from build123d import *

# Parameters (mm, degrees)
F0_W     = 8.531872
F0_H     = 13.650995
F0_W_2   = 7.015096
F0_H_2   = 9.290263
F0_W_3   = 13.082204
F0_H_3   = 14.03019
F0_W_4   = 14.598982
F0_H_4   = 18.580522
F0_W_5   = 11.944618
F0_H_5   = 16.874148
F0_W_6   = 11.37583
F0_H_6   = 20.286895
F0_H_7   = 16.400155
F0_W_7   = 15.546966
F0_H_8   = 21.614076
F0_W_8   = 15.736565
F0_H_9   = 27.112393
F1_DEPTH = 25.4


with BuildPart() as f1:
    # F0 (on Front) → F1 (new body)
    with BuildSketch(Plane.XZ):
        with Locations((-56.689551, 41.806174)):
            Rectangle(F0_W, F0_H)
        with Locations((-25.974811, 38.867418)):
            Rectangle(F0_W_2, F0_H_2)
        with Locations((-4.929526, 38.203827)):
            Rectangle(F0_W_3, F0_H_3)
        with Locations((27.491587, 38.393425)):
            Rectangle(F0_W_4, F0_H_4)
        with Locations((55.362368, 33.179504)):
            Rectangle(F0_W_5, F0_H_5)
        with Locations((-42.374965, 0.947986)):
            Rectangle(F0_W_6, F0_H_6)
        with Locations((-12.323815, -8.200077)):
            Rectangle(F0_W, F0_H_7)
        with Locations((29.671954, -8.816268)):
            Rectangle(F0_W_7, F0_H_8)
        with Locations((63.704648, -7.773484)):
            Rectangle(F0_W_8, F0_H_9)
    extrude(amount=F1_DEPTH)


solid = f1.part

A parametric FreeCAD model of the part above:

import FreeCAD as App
import Part
import Sketcher

V = App.Vector
Q = App.Units.Quantity

doc = App.newDocument("Part")
params = doc.addObject("Spreadsheet::Sheet", "Params")
for row, (alias, value) in enumerate([
    ("pad1_length", "1 in"),
], start=1):
    params.set(f"A{row}", alias)
    params.set(f"B{row}", "=" + value)
    params.setAlias(f"B{row}", alias)

body = doc.addObject("PartDesign::Body", "Body")
body.AllowCompound = True

# Sketch on XZ plane
sketch1 = doc.addObject("Sketcher::SketchObject", "Sketch")
body.addObject(sketch1)
sketch1.AttachmentSupport = (doc.XZ_Plane, [""])
sketch1.MapMode = "FlatFace"
sketch1.addGeometry(Part.LineSegment(V(-61, 49, 0), V(-61, 35, 0)), False)
sketch1.addGeometry(Part.LineSegment(V(-61, 35, 0), V(-52, 35, 0)), False)
sketch1.addGeometry(Part.LineSegment(V(-52, 35, 0), V(-52, 49, 0)), False)
sketch1.addGeometry(Part.LineSegment(V(-52, 49, 0), V(-61, 49, 0)), False)
sketch1.addGeometry(Part.LineSegment(V(-29, 44, 0), V(-29, 34, 0)), False)
sketch1.addGeometry(Part.LineSegment(V(-29, 34, 0), V(-22, 34, 0)), False)
sketch1.addGeometry(Part.LineSegment(V(-22, 34, 0), V(-22, 44, 0)), False)
sketch1.addGeometry(Part.LineSegment(V(-22, 44, 0), V(-29, 44, 0)), False)
sketch1.addGeometry(Part.LineSegment(V(-11, 45, 0), V(-11, 31, 0)), False)
sketch1.addGeometry(Part.LineSegment(V(-11, 31, 0), V(2, 31, 0)), False)
sketch1.addGeometry(Part.LineSegment(V(2, 31, 0), V(2, 45, 0)), False)
sketch1.addGeometry(Part.LineSegment(V(2, 45, 0), V(-11, 45, 0)), False)
sketch1.addGeometry(Part.LineSegment(V(20, 48, 0), V(20, 29, 0)), False)
sketch1.addGeometry(Part.LineSegment(V(20, 29, 0), V(35, 29, 0)), False)
sketch1.addGeometry(Part.LineSegment(V(35, 29, 0), V(35, 48, 0)), False)
sketch1.addGeometry(Part.LineSegment(V(35, 48, 0), V(20, 48, 0)), False)
sketch1.addGeometry(Part.LineSegment(V(49, 42, 0), V(49, 25, 0)), False)
sketch1.addGeometry(Part.LineSegment(V(49, 25, 0), V(61, 25, 0)), False)
sketch1.addGeometry(Part.LineSegment(V(61, 25, 0), V(61, 42, 0)), False)
sketch1.addGeometry(Part.LineSegment(V(61, 42, 0), V(49, 42, 0)), False)
sketch1.addGeometry(Part.LineSegment(V(-48, 11, 0), V(-48, -9, 0)), False)
sketch1.addGeometry(Part.LineSegment(V(-48, -9, 0), V(-37, -9, 0)), False)
sketch1.addGeometry(Part.LineSegment(V(-37, -9, 0), V(-37, 11, 0)), False)
sketch1.addGeometry(Part.LineSegment(V(-37, 11, 0), V(-48, 11, 0)), False)
sketch1.addGeometry(Part.LineSegment(V(-17, 0, 0), V(-17, -16, 0)), False)
sketch1.addGeometry(Part.LineSegment(V(-17, -16, 0), V(-8, -16, 0)), False)
sketch1.addGeometry(Part.LineSegment(V(-8, -16, 0), V(-8, 0, 0)), False)
sketch1.addGeometry(Part.LineSegment(V(-8, 0, 0), V(-17, 0, 0)), False)
sketch1.addGeometry(Part.LineSegment(V(22, 2, 0), V(22, -20, 0)), False)
sketch1.addGeometry(Part.LineSegment(V(22, -20, 0), V(37, -20, 0)), False)
sketch1.addGeometry(Part.LineSegment(V(37, -20, 0), V(37, 2, 0)), False)
sketch1.addGeometry(Part.LineSegment(V(37, 2, 0), V(22, 2, 0)), False)
sketch1.addGeometry(Part.LineSegment(V(56, 6, 0), V(56, -21, 0)), False)
sketch1.addGeometry(Part.LineSegment(V(56, -21, 0), V(72, -21, 0)), False)
sketch1.addGeometry(Part.LineSegment(V(72, -21, 0), V(72, 6, 0)), False)
sketch1.addGeometry(Part.LineSegment(V(72, 6, 0), V(56, 6, 0)), False)
sketch1.addConstraint(Sketcher.Constraint("Coincident", 0, 2, 1, 1))
sketch1.addConstraint(Sketcher.Constraint("Coincident", 1, 2, 2, 1))
sketch1.addConstraint(Sketcher.Constraint("Coincident", 2, 2, 3, 1))
sketch1.addConstraint(Sketcher.Constraint("Coincident", 3, 2, 0, 1))
sketch1.addConstraint(Sketcher.Constraint("Coincident", 4, 2, 5, 1))
sketch1.addConstraint(Sketcher.Constraint("Coincident", 5, 2, 6, 1))
sketch1.addConstraint(Sketcher.Constraint("Coincident", 6, 2, 7, 1))
sketch1.addConstraint(Sketcher.Constraint("Coincident", 7, 2, 4, 1))
sketch1.addConstraint(Sketcher.Constraint("Coincident", 8, 2, 9, 1))
sketch1.addConstraint(Sketcher.Constraint("Coincident", 9, 2, 10, 1))
sketch1.addConstraint(Sketcher.Constraint("Coincident", 10, 2, 11, 1))
sketch1.addConstraint(Sketcher.Constraint("Coincident", 11, 2, 8, 1))
sketch1.addConstraint(Sketcher.Constraint("Coincident", 12, 2, 13, 1))
sketch1.addConstraint(Sketcher.Constraint("Coincident", 13, 2, 14, 1))
sketch1.addConstraint(Sketcher.Constraint("Coincident", 14, 2, 15, 1))
sketch1.addConstraint(Sketcher.Constraint("Coincident", 15, 2, 12, 1))
sketch1.addConstraint(Sketcher.Constraint("Coincident", 16, 2, 17, 1))
sketch1.addConstraint(Sketcher.Constraint("Coincident", 17, 2, 18, 1))
sketch1.addConstraint(Sketcher.Constraint("Coincident", 18, 2, 19, 1))
sketch1.addConstraint(Sketcher.Constraint("Coincident", 19, 2, 16, 1))
sketch1.addConstraint(Sketcher.Constraint("Coincident", 20, 2, 21, 1))
sketch1.addConstraint(Sketcher.Constraint("Coincident", 21, 2, 22, 1))
sketch1.addConstraint(Sketcher.Constraint("Coincident", 22, 2, 23, 1))
sketch1.addConstraint(Sketcher.Constraint("Coincident", 23, 2, 20, 1))
sketch1.addConstraint(Sketcher.Constraint("Coincident", 24, 2, 25, 1))
sketch1.addConstraint(Sketcher.Constraint("Coincident", 25, 2, 26, 1))
sketch1.addConstraint(Sketcher.Constraint("Coincident", 26, 2, 27, 1))
sketch1.addConstraint(Sketcher.Constraint("Coincident", 27, 2, 24, 1))
sketch1.addConstraint(Sketcher.Constraint("Coincident", 28, 2, 29, 1))
sketch1.addConstraint(Sketcher.Constraint("Coincident", 29, 2, 30, 1))
sketch1.addConstraint(Sketcher.Constraint("Coincident", 30, 2, 31, 1))
sketch1.addConstraint(Sketcher.Constraint("Coincident", 31, 2, 28, 1))
sketch1.addConstraint(Sketcher.Constraint("Coincident", 32, 2, 33, 1))
sketch1.addConstraint(Sketcher.Constraint("Coincident", 33, 2, 34, 1))
sketch1.addConstraint(Sketcher.Constraint("Coincident", 34, 2, 35, 1))
sketch1.addConstraint(Sketcher.Constraint("Coincident", 35, 2, 32, 1))
sketch1.addConstraint(Sketcher.Constraint("Vertical", 0))
sketch1.addConstraint(Sketcher.Constraint("Horizontal", 1))
sketch1.addConstraint(Sketcher.Constraint("Vertical", 2))
sketch1.addConstraint(Sketcher.Constraint("Horizontal", 3))
sketch1.addConstraint(Sketcher.Constraint("Vertical", 4))
sketch1.addConstraint(Sketcher.Constraint("Horizontal", 5))
sketch1.addConstraint(Sketcher.Constraint("Vertical", 6))
sketch1.addConstraint(Sketcher.Constraint("Horizontal", 7))
sketch1.addConstraint(Sketcher.Constraint("Vertical", 8))
sketch1.addConstraint(Sketcher.Constraint("Horizontal", 9))
sketch1.addConstraint(Sketcher.Constraint("Vertical", 10))
sketch1.addConstraint(Sketcher.Constraint("Horizontal", 11))
sketch1.addConstraint(Sketcher.Constraint("Vertical", 12))
sketch1.addConstraint(Sketcher.Constraint("Horizontal", 13))
sketch1.addConstraint(Sketcher.Constraint("Vertical", 14))
sketch1.addConstraint(Sketcher.Constraint("Horizontal", 15))
sketch1.addConstraint(Sketcher.Constraint("Vertical", 16))
sketch1.addConstraint(Sketcher.Constraint("Horizontal", 17))
sketch1.addConstraint(Sketcher.Constraint("Vertical", 18))
sketch1.addConstraint(Sketcher.Constraint("Horizontal", 19))
sketch1.addConstraint(Sketcher.Constraint("Vertical", 20))
sketch1.addConstraint(Sketcher.Constraint("Horizontal", 21))
sketch1.addConstraint(Sketcher.Constraint("Vertical", 22))
sketch1.addConstraint(Sketcher.Constraint("Horizontal", 23))
sketch1.addConstraint(Sketcher.Constraint("Vertical", 24))
sketch1.addConstraint(Sketcher.Constraint("Horizontal", 25))
sketch1.addConstraint(Sketcher.Constraint("Vertical", 26))
sketch1.addConstraint(Sketcher.Constraint("Horizontal", 27))
sketch1.addConstraint(Sketcher.Constraint("Vertical", 28))
sketch1.addConstraint(Sketcher.Constraint("Horizontal", 29))
sketch1.addConstraint(Sketcher.Constraint("Vertical", 30))
sketch1.addConstraint(Sketcher.Constraint("Horizontal", 31))
sketch1.addConstraint(Sketcher.Constraint("Vertical", 32))
sketch1.addConstraint(Sketcher.Constraint("Horizontal", 33))
sketch1.addConstraint(Sketcher.Constraint("Vertical", 34))
sketch1.addConstraint(Sketcher.Constraint("Horizontal", 35))
sketch1.addConstraint(Sketcher.Constraint("PointOnObject", 26, 2, -1))
sketch1.addConstraint(Sketcher.Constraint("Equal", 3, 25))
sketch1.addConstraint(Sketcher.Constraint("DistanceX", 20, 2, 25, 2, Q("1.575 in")))
sketch1.addConstraint(Sketcher.Constraint("DistanceX", 21, 1, 21, 2, 11.37583))
sketch1.addConstraint(Sketcher.Constraint("DistanceY", 8, 2, 8, 1, 14.03019))
sketch1.addConstraint(Sketcher.Constraint("DistanceX", 13, 2, 17, 2, 26.543599))
sketch1.addConstraint(Sketcher.Constraint("DistanceX", 21, 2, 24, 2, 20.097299))
sketch1.addConstraint(Sketcher.Constraint("DistanceX", 5, 1, 5, 2, 7.015096))
sketch1.addConstraint(Sketcher.Constraint("DistanceX", 9, 1, 9, 2, 13.082204))
sketch1.addConstraint(Sketcher.Constraint("DistanceX", 13, 1, 13, 2, 14.598982))
sketch1.addConstraint(Sketcher.Constraint("DistanceX", 17, 1, 17, 2, 11.944618))
sketch1.addConstraint(Sketcher.Constraint("DistanceX", 29, 1, 29, 2, 15.546966))
sketch1.addConstraint(Sketcher.Constraint("DistanceX", 33, 1, 33, 2, 15.736565))
sketch1.addConstraint(Sketcher.Constraint("DistanceY", 0, 2, 0, 1, 13.650995))
sketch1.addConstraint(Sketcher.Constraint("DistanceY", 4, 2, 4, 1, 9.290263))
sketch1.addConstraint(Sketcher.Constraint("DistanceY", 12, 2, 12, 1, 18.580522))
sketch1.addConstraint(Sketcher.Constraint("DistanceY", 16, 2, 16, 1, 16.874148))
sketch1.addConstraint(Sketcher.Constraint("DistanceY", 20, 2, 20, 1, 20.286895))
sketch1.addConstraint(Sketcher.Constraint("DistanceY", 24, 2, 24, 1, 16.400155))
sketch1.addConstraint(Sketcher.Constraint("DistanceY", 28, 2, 28, 1, 21.614076))
sketch1.addConstraint(Sketcher.Constraint("DistanceY", 32, 2, 32, 1, 27.112393))
sketch1.addConstraint(Sketcher.Constraint("DistanceY", -1, 1, 2, 2, 48.631672))
sketch1.addConstraint(Sketcher.Constraint("DistanceX", 4, 2, -1, 1, 29.482359))
sketch1.addConstraint(Sketcher.Constraint("DistanceY", -1, 1, 6, 2, 43.512549))
sketch1.addConstraint(Sketcher.Constraint("DistanceX", -1, 1, 16, 2, 49.390059))
sketch1.addConstraint(Sketcher.Constraint("DistanceY", -1, 1, 16, 2, 24.74243))
sketch1.addConstraint(Sketcher.Constraint("DistanceX", 20, 2, -1, 1, 48.06288))
sketch1.addConstraint(Sketcher.Constraint("DistanceY", 20, 2, -1, 1, 9.195462))
sketch1.addConstraint(Sketcher.Constraint("DistanceX", -1, 1, 28, 2, 21.898471))
sketch1.addConstraint(Sketcher.Constraint("DistanceY", -1, 1, 30, 2, 1.99077))
sketch1.addConstraint(Sketcher.Constraint("DistanceY", 32, 2, -1, 1, 21.32968))
sketch1.addConstraint(Sketcher.Constraint("DistanceX", -1, 1, 33, 2, 71.57293))
sketch1.addConstraint(Sketcher.Constraint("DistanceX", 1, 2, 5, 2, 29.956352))
sketch1.addConstraint(Sketcher.Constraint("DistanceX", 4, 2, 8, 2, 18.011731))
sketch1.addConstraint(Sketcher.Constraint("DistanceY", 12, 2, 9, 2, 2.085568))
sketch1.addConstraint(Sketcher.Constraint("DistanceY", 18, 2, 14, 2, 6.067108))
pad1 = doc.addObject("PartDesign::Pad", "Pad")
body.addObject(pad1)
pad1.Profile = sketch1
pad1.setExpression("Length", "Params.pad1_length")

doc.recompute()
